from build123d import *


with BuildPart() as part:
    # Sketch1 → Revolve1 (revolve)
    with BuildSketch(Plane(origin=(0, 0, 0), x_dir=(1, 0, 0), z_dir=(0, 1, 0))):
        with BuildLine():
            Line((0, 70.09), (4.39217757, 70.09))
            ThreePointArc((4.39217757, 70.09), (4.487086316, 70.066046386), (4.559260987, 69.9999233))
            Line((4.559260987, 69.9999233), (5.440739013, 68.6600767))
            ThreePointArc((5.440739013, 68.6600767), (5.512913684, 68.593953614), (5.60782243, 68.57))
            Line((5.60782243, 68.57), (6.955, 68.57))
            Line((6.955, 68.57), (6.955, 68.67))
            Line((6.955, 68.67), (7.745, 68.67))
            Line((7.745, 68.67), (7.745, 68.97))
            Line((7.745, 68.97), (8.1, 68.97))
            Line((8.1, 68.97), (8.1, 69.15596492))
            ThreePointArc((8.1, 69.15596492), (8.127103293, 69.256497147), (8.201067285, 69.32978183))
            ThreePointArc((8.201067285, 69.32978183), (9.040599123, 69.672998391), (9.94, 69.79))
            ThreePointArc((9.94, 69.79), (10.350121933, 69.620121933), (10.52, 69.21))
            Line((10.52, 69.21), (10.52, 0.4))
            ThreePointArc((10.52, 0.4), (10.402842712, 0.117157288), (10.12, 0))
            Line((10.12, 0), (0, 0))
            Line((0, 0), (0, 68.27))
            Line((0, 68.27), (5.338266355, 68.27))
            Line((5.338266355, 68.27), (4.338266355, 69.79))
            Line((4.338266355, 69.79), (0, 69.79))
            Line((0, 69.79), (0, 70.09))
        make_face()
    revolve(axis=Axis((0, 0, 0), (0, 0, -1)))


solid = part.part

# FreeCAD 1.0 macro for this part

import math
import FreeCAD as App
import Part
import Sketcher

doc = App.newDocument("Part")
body = doc.addObject("PartDesign::Body", "Body")

# Sketch on XZ plane
sketch1 = body.newObject("Sketcher::SketchObject", "Sketch")
sketch1.AttachmentSupport = (doc.getObject("XZ_Plane"), [""])
sketch1.MapMode = "FlatFace"
sketch1.addGeometry(Part.LineSegment(App.Vector(4.392178, -70.09, 0), App.Vector(0, -70.09, 0)), False)
sketch1.addGeometry(Part.LineSegment(App.Vector(0, -70.09, 0), App.Vector(0, -69.79, 0)), False)
sketch1.addGeometry(Part.LineSegment(App.Vector(0, -69.79, 0), App.Vector(4.338266, -69.79, 0)), False)
sketch1.addGeometry(Part.LineSegment(App.Vector(4.338266, -69.79, 0), App.Vector(5.338266, -68.27, 0)), False)
sketch1.addGeometry(Part.LineSegment(App.Vector(5.338266, -68.27, 0), App.Vector(0, -68.27, 0)), False)
sketch1.addGeometry(Part.LineSegment(App.Vector(0, -68.27, 0), App.Vector(0, 0, 0)), False)
sketch1.addGeometry(Part.LineSegment(App.Vector(0, 0, 0), App.Vector(10.12, 0, 0)), False)
sketch1.addGeometry(Part.ArcOfCircle(Part.Circle(App.Vector(10.12, -0.4, 0), App.Vector(0, 0, 1), 0.4), math.radians(0), math.radians(90)), False)
sketch1.addGeometry(Part.LineSegment(App.Vector(10.52, -0.4, 0), App.Vector(10.52, -69.21, 0)), False)
sketch1.addGeometry(Part.ArcOfCircle(Part.Circle(App.Vector(9.94, -69.21, 0), App.Vector(0, 0, 1), 0.58), math.radians(-90), math.radians(0)), False)
sketch1.addGeometry(Part.ArcOfCircle(Part.Circle(App.Vector(9.94, -66.274615, 0), App.Vector(0, 0, 1), 3.515385), math.radians(-119.647568), math.radians(-90)), False)
sketch1.addGeometry(Part.ArcOfCircle(Part.Circle(App.Vector(8.3, -69.155965, 0), App.Vector(0, 0, 1), 0.2), math.radians(-180), math.radians(-119.647569)), False)
sketch1.addGeometry(Part.LineSegment(App.Vector(8.1, -69.155965, 0), App.Vector(8.1, -68.97, 0)), False)
sketch1.addGeometry(Part.LineSegment(App.Vector(8.1, -68.97, 0), App.Vector(7.745, -68.97, 0)), False)
sketch1.addGeometry(Part.LineSegment(App.Vector(7.745, -68.97, 0), App.Vector(7.745, -68.67, 0)), False)
sketch1.addGeometry(Part.LineSegment(App.Vector(7.745, -68.67, 0), App.Vector(6.955, -68.67, 0)), False)
sketch1.addGeometry(Part.LineSegment(App.Vector(6.955, -68.67, 0), App.Vector(6.955, -68.57, 0)), False)
sketch1.addGeometry(Part.LineSegment(App.Vector(6.955, -68.57, 0), App.Vector(5.607822, -68.57, 0)), False)
sketch1.addGeometry(Part.ArcOfCircle(Part.Circle(App.Vector(5.607822, -68.77, 0), App.Vector(0, 0, 1), 0.2), math.radians(90), math.radians(146.659293)), False)
sketch1.addGeometry(Part.LineSegment(App.Vector(5.440739, -68.660077, 0), App.Vector(4.559261, -69.999923, 0)), False)
sketch1.addGeometry(Part.ArcOfCircle(Part.Circle(App.Vector(4.392178, -69.89, 0), App.Vector(0, 0, 1), 0.2), math.radians(-90), math.radians(-33.340707)), False)
sketch1.addConstraint(Sketcher.Constraint("Coincident", 0, 2, 1, 1))
sketch1.addConstraint(Sketcher.Constraint("Coincident", 1, 2, 2, 1))
sketch1.addConstraint(Sketcher.Constraint("Coincident", 2, 2, 3, 1))
sketch1.addConstraint(Sketcher.Constraint("Coincident", 3, 2, 4, 1))
sketch1.addConstraint(Sketcher.Constraint("Coincident", 4, 2, 5, 1))
sketch1.addConstraint(Sketcher.Constraint("Coincident", 5, 2, 6, 1))
sketch1.addConstraint(Sketcher.Constraint("Tangent", 6, 2, 7, 2))
sketch1.addConstraint(Sketcher.Constraint("Tangent", 7, 1, 8, 1))
sketch1.addConstraint(Sketcher.Constraint("Tangent", 8, 2, 9, 2))
sketch1.addConstraint(Sketcher.Constraint("Tangent", 9, 1, 10, 2))
sketch1.addConstraint(Sketcher.Constraint("Tangent", 10, 1, 11, 2))
sketch1.addConstraint(Sketcher.Constraint("Tangent", 11, 1, 12, 1))
sketch1.addConstraint(Sketcher.Constraint("Coincident", 12, 2, 13, 1))
sketch1.addConstraint(Sketcher.Constraint("Coincident", 13, 2, 14, 1))
sketch1.addConstraint(Sketcher.Constraint("Coincident", 14, 2, 15, 1))
sketch1.addConstraint(Sketcher.Constraint("Coincident", 15, 2, 16, 1))
sketch1.addConstraint(Sketcher.Constraint("Coincident", 16, 2, 17, 1))
sketch1.addConstraint(Sketcher.Constraint("Tangent", 17, 2, 18, 1))
sketch1.addConstraint(Sketcher.Constraint("Tangent", 18, 2, 19, 1))
sketch1.addConstraint(Sketcher.Constraint("Tangent", 19, 2, 20, 2))
sketch1.addConstraint(Sketcher.Constraint("Tangent", 20, 1, 0, 1))
sketch1.addConstraint(Sketcher.Constraint("Horizontal", 0))
sketch1.addConstraint(Sketcher.Constraint("Vertical", 1))
sketch1.addConstraint(Sketcher.Constraint("Horizontal", 2))
sketch1.addConstraint(Sketcher.Constraint("Horizontal", 4))
sketch1.addConstraint(Sketcher.Constraint("Vertical", 5))
sketch1.addConstraint(Sketcher.Constraint("Horizontal", 6))
sketch1.addConstraint(Sketcher.Constraint("Vertical", 8))
sketch1.addConstraint(Sketcher.Constraint("Vertical", 12))
sketch1.addConstraint(Sketcher.Constraint("Horizontal", 13))
sketch1.addConstraint(Sketcher.Constraint("Vertical", 14))
sketch1.addConstraint(Sketcher.Constraint("Horizontal", 15))
sketch1.addConstraint(Sketcher.Constraint("Vertical", 16))
sketch1.addConstraint(Sketcher.Constraint("Horizontal", 17))
sketch1.addConstraint(Sketcher.Constraint("Coincident", 5, 2, -1, 1))
sketch1.addConstraint(Sketcher.Constraint("Equal", 11, 18))
sketch1.addConstraint(Sketcher.Constraint("Equal", 18, 20))
sketch1.addConstraint(Sketcher.Constraint("PointOnObject", 0, 2, -2))
sketch1.addConstraint(Sketcher.Constraint("Parallel", 3, 19))
sketch1.addConstraint(Sketcher.Constraint("Horizontal", 2, 2, 9, 1))
sketch1.addConstraint(Sketcher.Constraint("Vertical", 9, 3, 10, 3))
sketch1.addConstraint(Sketcher.Constraint("Equal", 1, 14))
sketch1.addConstraint(Sketcher.Constraint("Radius", 7, 0.4))
sketch1.addConstraint(Sketcher.Constraint("Radius", 11, 0.2))
sketch1.addConstraint(Sketcher.Constraint("Radius", 9, 0.58))
sketch1.addConstraint(Sketcher.Constraint("DistanceY", 1, 1, 1, 2, 0.3))
sketch1.addConstraint(Sketcher.Constraint("DistanceY", 16, 1, 16, 2, 0.1))
sketch1.addConstraint(Sketcher.Constraint("DistanceX", 2, 2, 3, 2, 1.0))
sketch1.addConstraint(Sketcher.Constraint("DistanceX", 6, 1, 6, 2, 10.12))
sketch1.addConstraint(Sketcher.Constraint("DistanceX", 15, 2, 15, 1, 0.79))
sketch1.addConstraint(Sketcher.Constraint("DistanceY", 5, 1, 5, 2, 68.27))
sketch1.addConstraint(Sketcher.Constraint("DistanceY", 8, 2, 8, 1, 68.81))
sketch1.addConstraint(Sketcher.Constraint("DistanceX", -1, 1, 11, 3, 8.3))
sketch1.addConstraint(Sketcher.Constraint("DistanceY", 18, 3, 3, 2, 0.5))
sketch1.addConstraint(Sketcher.Constraint("DistanceX", 13, 2, 13, 1, 0.355))
sketch1.addConstraint(Sketcher.Constraint("Radius", 10, 3.515385))
sketch1.addConstraint(Sketcher.Constraint("DistanceX", 0, 2, 0, 1, 4.392178))
sketch1.addConstraint(Sketcher.Constraint("DistanceX", 2, 1, 2, 2, 4.338266))
revolution = body.newObject("PartDesign::Revolution", "Revolution")
revolution.Profile = sketch1
revolution.ReferenceAxis = (sketch1, ["V_Axis"])
revolution.Angle = 360

doc.recompute()
